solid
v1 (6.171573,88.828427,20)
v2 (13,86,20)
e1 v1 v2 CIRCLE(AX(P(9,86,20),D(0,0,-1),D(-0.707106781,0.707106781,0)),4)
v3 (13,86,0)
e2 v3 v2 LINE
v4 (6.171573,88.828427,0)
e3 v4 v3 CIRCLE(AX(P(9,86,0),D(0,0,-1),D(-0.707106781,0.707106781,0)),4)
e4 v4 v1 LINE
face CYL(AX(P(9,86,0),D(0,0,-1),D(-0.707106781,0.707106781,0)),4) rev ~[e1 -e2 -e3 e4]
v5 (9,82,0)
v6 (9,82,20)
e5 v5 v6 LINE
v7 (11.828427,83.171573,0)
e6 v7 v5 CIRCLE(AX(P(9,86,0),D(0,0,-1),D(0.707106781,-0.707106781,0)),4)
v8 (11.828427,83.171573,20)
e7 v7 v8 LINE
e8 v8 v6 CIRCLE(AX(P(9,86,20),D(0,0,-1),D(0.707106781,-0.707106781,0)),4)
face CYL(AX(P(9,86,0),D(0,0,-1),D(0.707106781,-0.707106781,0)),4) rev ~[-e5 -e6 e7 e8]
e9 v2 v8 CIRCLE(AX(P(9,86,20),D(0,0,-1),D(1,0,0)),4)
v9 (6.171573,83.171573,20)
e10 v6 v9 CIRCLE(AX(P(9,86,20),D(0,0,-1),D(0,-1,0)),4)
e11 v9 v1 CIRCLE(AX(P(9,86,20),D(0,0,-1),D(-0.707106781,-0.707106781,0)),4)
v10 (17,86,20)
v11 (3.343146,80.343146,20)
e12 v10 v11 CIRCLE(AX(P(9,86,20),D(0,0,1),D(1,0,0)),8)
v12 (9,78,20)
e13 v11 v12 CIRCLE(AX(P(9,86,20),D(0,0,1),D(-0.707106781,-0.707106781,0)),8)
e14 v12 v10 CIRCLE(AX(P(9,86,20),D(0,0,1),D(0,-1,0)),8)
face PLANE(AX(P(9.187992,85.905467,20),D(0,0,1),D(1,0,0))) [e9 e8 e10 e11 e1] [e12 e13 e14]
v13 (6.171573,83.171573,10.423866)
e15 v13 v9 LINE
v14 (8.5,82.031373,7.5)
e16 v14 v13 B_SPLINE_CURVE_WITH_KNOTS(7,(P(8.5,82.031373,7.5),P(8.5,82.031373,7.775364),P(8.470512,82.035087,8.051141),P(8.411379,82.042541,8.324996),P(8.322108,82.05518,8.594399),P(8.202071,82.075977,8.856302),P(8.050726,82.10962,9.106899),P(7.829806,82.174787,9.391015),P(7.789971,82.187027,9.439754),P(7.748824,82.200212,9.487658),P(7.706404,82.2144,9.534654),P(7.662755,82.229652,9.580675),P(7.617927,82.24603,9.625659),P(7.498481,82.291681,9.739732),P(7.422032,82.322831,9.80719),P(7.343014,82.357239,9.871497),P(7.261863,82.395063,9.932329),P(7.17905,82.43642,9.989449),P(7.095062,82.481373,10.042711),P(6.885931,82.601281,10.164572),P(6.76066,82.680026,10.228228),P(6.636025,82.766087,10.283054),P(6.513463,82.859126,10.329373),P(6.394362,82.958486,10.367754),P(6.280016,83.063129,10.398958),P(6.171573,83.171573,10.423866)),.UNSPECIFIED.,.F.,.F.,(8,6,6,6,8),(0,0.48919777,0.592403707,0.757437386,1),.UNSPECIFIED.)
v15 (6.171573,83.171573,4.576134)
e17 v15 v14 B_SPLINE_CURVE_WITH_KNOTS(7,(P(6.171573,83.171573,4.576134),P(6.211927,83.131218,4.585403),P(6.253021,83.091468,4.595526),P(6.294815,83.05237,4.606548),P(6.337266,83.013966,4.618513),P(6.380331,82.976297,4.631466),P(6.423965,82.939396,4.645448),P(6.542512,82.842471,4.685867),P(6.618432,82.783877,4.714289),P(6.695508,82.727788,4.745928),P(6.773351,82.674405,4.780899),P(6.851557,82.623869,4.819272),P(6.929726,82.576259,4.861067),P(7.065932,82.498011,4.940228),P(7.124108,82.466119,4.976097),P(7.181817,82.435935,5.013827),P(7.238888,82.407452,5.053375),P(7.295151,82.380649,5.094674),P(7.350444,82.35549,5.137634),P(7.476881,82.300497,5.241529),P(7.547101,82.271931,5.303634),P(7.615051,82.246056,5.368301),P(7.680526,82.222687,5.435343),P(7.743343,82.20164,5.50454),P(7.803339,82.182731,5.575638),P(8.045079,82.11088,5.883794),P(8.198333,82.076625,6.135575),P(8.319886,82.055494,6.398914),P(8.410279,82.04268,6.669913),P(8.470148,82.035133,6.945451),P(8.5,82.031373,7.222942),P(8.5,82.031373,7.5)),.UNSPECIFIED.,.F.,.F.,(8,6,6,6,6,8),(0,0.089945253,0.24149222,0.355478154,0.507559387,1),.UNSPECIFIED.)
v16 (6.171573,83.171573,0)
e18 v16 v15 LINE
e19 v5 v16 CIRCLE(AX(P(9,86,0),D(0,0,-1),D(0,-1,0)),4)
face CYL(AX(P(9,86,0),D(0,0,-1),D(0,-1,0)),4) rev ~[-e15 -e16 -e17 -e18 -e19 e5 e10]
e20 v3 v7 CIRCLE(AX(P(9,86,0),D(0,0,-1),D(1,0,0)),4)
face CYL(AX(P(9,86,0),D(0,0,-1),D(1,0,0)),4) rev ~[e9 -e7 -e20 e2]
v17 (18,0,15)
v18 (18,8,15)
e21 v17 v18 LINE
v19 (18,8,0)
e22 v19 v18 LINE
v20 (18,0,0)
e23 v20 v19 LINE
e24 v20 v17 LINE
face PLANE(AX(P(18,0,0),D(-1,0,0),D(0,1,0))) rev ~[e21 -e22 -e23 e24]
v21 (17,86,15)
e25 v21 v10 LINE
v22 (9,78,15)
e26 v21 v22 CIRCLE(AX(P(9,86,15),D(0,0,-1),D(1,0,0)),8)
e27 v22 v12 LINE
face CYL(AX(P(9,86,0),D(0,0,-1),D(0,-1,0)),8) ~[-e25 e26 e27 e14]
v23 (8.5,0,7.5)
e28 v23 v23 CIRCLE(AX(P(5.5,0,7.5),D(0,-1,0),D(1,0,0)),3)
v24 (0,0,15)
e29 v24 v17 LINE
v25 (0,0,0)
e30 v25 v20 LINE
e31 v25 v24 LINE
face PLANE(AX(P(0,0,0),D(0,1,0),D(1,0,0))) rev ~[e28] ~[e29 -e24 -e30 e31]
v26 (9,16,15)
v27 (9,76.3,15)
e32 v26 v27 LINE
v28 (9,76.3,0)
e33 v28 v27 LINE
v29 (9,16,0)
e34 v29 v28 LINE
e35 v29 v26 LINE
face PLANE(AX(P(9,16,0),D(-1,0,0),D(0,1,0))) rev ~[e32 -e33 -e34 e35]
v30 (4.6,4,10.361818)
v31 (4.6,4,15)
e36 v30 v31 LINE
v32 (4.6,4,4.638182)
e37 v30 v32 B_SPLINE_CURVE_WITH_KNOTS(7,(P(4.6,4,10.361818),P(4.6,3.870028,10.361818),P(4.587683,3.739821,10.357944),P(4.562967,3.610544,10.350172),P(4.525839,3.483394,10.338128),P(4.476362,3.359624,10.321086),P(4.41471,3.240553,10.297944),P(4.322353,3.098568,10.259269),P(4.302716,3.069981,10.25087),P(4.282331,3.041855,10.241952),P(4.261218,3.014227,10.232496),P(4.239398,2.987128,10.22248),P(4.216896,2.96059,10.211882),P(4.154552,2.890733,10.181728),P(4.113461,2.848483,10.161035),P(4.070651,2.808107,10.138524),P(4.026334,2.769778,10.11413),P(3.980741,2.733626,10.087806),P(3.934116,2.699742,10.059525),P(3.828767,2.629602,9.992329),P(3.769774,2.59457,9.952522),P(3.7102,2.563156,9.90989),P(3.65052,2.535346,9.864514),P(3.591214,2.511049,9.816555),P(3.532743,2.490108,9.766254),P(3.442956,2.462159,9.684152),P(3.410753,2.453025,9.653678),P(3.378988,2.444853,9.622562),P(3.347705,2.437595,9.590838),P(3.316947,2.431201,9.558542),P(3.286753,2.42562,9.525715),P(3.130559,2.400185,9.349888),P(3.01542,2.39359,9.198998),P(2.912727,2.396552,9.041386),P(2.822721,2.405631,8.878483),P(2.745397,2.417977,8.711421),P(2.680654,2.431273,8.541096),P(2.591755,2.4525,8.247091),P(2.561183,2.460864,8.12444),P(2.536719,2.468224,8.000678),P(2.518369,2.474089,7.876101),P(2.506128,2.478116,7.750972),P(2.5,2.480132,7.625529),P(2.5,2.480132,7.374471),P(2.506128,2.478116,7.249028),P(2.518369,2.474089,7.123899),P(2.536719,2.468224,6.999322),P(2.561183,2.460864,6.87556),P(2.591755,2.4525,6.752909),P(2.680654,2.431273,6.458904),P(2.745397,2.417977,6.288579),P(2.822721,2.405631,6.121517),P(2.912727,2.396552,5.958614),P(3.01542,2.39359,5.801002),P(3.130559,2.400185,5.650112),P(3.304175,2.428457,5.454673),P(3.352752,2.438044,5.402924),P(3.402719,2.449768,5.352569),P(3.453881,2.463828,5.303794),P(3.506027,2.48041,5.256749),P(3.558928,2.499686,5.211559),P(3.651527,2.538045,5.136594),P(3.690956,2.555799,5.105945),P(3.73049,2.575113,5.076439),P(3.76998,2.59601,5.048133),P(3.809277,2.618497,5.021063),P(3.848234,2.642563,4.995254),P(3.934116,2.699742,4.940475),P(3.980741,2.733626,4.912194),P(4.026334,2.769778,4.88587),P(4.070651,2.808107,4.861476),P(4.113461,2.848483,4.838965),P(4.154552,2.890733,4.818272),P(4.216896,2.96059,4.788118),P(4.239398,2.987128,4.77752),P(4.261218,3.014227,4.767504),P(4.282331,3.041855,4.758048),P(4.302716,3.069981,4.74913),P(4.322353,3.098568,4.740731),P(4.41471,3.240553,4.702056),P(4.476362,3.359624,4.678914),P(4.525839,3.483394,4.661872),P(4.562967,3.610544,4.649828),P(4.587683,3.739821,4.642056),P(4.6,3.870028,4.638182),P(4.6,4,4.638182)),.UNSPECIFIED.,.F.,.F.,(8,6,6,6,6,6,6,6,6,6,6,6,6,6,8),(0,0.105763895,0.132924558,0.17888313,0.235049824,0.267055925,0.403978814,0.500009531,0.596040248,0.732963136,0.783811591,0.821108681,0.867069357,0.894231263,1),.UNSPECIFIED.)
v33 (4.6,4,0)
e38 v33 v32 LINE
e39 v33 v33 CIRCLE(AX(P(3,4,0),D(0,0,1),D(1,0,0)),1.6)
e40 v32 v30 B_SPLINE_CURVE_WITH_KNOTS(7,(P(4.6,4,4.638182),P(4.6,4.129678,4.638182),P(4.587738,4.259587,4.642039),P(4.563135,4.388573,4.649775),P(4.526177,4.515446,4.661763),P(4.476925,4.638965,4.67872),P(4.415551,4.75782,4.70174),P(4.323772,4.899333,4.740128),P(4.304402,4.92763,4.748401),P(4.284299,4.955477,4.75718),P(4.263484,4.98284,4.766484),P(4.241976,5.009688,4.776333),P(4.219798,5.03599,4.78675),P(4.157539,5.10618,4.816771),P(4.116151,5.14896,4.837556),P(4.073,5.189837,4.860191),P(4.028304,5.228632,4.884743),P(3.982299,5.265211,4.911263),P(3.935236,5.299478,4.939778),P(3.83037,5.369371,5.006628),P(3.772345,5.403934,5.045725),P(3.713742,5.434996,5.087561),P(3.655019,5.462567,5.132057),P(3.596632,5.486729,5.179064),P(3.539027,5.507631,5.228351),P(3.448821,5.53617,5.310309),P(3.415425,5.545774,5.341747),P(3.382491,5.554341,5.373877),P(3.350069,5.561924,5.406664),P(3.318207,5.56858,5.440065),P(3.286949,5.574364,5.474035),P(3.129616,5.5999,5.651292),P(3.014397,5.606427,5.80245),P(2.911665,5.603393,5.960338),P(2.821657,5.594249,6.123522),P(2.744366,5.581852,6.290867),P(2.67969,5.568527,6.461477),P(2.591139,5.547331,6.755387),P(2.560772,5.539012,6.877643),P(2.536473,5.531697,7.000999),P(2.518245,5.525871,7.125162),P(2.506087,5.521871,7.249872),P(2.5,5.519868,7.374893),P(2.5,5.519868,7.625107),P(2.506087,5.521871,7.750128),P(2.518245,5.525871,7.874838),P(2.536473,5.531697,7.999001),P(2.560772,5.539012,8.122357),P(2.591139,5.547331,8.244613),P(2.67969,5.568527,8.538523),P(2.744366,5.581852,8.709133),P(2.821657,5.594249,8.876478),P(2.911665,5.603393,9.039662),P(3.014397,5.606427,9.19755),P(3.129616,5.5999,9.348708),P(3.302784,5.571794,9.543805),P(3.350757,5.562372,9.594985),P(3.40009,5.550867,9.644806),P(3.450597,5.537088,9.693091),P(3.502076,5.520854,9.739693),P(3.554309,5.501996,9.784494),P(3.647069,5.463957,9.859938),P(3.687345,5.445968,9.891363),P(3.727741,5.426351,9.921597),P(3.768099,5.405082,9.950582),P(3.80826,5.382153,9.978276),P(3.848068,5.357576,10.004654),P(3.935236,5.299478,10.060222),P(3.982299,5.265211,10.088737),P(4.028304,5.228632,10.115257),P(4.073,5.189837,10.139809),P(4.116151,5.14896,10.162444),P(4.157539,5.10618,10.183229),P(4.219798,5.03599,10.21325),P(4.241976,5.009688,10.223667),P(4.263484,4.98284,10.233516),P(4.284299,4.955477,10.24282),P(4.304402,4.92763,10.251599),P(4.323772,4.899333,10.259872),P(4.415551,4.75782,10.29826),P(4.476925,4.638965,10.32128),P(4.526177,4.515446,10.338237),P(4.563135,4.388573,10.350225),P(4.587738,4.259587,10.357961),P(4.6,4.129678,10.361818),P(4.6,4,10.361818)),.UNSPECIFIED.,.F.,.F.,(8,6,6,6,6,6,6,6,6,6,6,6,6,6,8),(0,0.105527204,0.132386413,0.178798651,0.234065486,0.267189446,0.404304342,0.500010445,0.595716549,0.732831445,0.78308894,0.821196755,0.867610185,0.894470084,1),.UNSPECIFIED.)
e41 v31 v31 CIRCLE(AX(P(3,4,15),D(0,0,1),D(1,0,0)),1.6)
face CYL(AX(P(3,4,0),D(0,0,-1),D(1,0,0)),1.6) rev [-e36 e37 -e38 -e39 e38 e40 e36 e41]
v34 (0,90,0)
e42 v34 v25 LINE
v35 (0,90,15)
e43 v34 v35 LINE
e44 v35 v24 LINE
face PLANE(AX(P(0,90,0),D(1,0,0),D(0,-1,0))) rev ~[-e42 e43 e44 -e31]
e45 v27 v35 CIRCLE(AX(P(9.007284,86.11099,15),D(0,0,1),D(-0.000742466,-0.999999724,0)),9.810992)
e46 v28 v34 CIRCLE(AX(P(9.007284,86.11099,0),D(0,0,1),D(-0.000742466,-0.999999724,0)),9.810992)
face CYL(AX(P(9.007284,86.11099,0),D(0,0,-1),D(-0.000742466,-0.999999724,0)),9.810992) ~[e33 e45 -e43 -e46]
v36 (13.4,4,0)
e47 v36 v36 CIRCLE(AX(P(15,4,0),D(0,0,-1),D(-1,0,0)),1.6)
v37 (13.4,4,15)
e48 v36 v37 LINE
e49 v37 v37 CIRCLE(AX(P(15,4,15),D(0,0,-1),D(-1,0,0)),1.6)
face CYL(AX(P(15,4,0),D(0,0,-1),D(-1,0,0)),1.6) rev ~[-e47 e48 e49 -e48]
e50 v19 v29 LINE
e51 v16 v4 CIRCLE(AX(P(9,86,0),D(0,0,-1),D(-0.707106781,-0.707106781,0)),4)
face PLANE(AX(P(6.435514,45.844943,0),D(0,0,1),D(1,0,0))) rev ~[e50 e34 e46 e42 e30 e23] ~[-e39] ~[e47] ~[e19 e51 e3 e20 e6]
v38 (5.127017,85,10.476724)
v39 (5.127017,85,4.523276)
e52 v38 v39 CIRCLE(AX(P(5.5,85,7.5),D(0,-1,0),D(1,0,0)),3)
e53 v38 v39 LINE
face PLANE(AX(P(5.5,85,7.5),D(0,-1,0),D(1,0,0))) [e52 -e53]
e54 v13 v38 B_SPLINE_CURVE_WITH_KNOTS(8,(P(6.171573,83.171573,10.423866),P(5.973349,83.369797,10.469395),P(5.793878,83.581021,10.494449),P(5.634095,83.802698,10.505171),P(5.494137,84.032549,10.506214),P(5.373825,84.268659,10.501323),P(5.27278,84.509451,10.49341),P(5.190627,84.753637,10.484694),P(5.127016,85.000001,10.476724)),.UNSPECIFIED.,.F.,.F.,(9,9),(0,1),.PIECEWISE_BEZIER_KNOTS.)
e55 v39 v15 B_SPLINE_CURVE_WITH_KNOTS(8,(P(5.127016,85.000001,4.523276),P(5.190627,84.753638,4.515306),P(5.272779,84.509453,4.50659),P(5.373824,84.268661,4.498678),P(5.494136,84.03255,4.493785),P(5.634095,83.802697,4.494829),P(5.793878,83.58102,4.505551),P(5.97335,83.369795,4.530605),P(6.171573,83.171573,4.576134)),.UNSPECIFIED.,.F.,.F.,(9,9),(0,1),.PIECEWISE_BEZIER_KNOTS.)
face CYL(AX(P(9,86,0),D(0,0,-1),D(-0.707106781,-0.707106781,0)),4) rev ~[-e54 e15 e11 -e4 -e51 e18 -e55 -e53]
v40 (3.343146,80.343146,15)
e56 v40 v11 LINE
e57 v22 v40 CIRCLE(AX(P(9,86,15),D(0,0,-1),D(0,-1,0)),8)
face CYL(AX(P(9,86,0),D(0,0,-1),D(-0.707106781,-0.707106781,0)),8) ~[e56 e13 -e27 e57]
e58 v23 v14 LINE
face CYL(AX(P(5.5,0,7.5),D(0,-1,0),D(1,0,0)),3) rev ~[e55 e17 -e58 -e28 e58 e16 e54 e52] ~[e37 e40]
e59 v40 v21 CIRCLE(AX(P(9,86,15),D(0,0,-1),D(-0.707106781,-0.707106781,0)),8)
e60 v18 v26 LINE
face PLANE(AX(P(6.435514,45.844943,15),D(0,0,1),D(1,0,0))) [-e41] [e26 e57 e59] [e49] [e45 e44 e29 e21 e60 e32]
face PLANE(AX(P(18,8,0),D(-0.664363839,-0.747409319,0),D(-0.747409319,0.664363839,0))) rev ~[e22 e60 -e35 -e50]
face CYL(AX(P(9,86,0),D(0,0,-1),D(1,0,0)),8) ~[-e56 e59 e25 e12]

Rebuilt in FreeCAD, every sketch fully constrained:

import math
import FreeCAD as App
import Part
import Sketcher

doc = App.newDocument("Part")
body = doc.addObject("PartDesign::Body", "Body")

# Sketch on XY plane
sketch1 = body.newObject("Sketcher::SketchObject", "Sketch")
sketch1.AttachmentSupport = (doc.getObject("XY_Plane"), [""])
sketch1.MapMode = "FlatFace"
sketch1.addGeometry(Part.ArcOfCircle(Part.Circle(App.Vector(9, 86, 0), App.Vector(0, 0, 1), 8), math.radians(-90), math.radians(0)), False)
sketch1.addGeometry(Part.ArcOfCircle(Part.Circle(App.Vector(9, 86, 0), App.Vector(0, 0, 1), 8), math.radians(0), math.radians(225)), False)
sketch1.addGeometry(Part.ArcOfCircle(Part.Circle(App.Vector(9, 86, 0), App.Vector(0, 0, 1), 8), math.radians(-135), math.radians(-90)), False)
sketch1.addGeometry(Part.ArcOfCircle(Part.Circle(App.Vector(9, 86, 0), App.Vector(0, 0, 1), 4), math.radians(135), math.radians(225)), False)
sketch1.addGeometry(Part.ArcOfCircle(Part.Circle(App.Vector(9, 86, 0), App.Vector(0, 0, 1), 4), math.radians(0), math.radians(135)), False)
sketch1.addGeometry(Part.ArcOfCircle(Part.Circle(App.Vector(9, 86, 0), App.Vector(0, 0, 1), 4), math.radians(-45), math.radians(0)), False)
sketch1.addGeometry(Part.ArcOfCircle(Part.Circle(App.Vector(9, 86, 0), App.Vector(0, 0, 1), 4), math.radians(-90), math.radians(-45)), False)
sketch1.addGeometry(Part.ArcOfCircle(Part.Circle(App.Vector(9, 86, 0), App.Vector(0, 0, 1), 4), math.radians(-135), math.radians(-90)), False)
sketch1.addConstraint(Sketcher.Constraint("Tangent", 0, 2, 1, 1))
sketch1.addConstraint(Sketcher.Constraint("Tangent", 1, 2, 2, 1))
sketch1.addConstraint(Sketcher.Constraint("Tangent", 2, 2, 0, 1))
sketch1.addConstraint(Sketcher.Constraint("Tangent", 3, 1, 4, 2))
sketch1.addConstraint(Sketcher.Constraint("Tangent", 4, 1, 5, 2))
sketch1.addConstraint(Sketcher.Constraint("Tangent", 5, 1, 6, 2))
sketch1.addConstraint(Sketcher.Constraint("Tangent", 6, 1, 7, 2))
sketch1.addConstraint(Sketcher.Constraint("Tangent", 7, 1, 3, 2))
sketch1.addConstraint(Sketcher.Constraint("Coincident", 3, 3, 0, 3))
sketch1.addConstraint(Sketcher.Constraint("Coincident", 5, 3, 0, 3))
sketch1.addConstraint(Sketcher.Constraint("Horizontal", 7, 3, 0, 2))
sketch1.addConstraint(Sketcher.Constraint("Horizontal", 0, 2, 4, 1))
sketch1.addConstraint(Sketcher.Constraint("Horizontal", 5, 1, 7, 1))
sketch1.addConstraint(Sketcher.Constraint("Vertical", 7, 3, 2, 2))
sketch1.addConstraint(Sketcher.Constraint("Vertical", 2, 2, 6, 1))
sketch1.addConstraint(Sketcher.Constraint("Vertical", 3, 1, 7, 1))
sketch1.addConstraint(Sketcher.Constraint("Radius", 0, 8.0))
sketch1.addConstraint(Sketcher.Constraint("Radius", 3, 4.0))
sketch1.addConstraint(Sketcher.Constraint("DistanceX", -1, 1, 0, 3, 9.0))
sketch1.addConstraint(Sketcher.Constraint("DistanceY", -1, 1, 0, 3, 86.0))
sketch1.addConstraint(Sketcher.Constraint("DistanceX", -1, 1, 1, 2, 3.343146))
sketch1.addConstraint(Sketcher.Constraint("DistanceX", -1, 1, 3, 1, 6.171573))
pad1 = body.newObject("PartDesign::Pad", "Pad")
pad1.Profile = sketch1
pad1.Length = 20

# Sketch on XY plane
sketch2 = body.newObject("Sketcher::SketchObject", "Sketch001")
sketch2.AttachmentSupport = (doc.getObject("XY_Plane"), [""])
sketch2.MapMode = "FlatFace"
sketch2.addGeometry(Part.ArcOfCircle(Part.Circle(App.Vector(9, 86.1, 0), App.Vector(0, 0, 1), 9.8), math.radians(-90), math.radians(157)), False)
sketch2.addGeometry(Part.LineSegment(App.Vector(0, 90, 0), App.Vector(0, 0, 0)), False)
sketch2.addGeometry(Part.LineSegment(App.Vector(0, 0, 0), App.Vector(18, 0, 0)), False)
sketch2.addGeometry(Part.LineSegment(App.Vector(18, 0, 0), App.Vector(18, 8, 0)), False)
sketch2.addGeometry(Part.LineSegment(App.Vector(18, 8, 0), App.Vector(9, 16, 0)), False)
sketch2.addGeometry(Part.LineSegment(App.Vector(9, 16, 0), App.Vector(9, 76.3, 0)), False)
sketch2.addGeometry(Part.Circle(App.Vector(3, 4, 0), App.Vector(0, 0, 1), 1.6), False)
sketch2.addGeometry(Part.Circle(App.Vector(15, 4, 0), App.Vector(0, 0, 1), 1.6), False)
sketch2.addGeometry(Part.ArcOfCircle(Part.Circle(App.Vector(9, 86, 0), App.Vector(0, 0, 1), 8), math.radians(0), math.radians(225)), False)
sketch2.addGeometry(Part.ArcOfCircle(Part.Circle(App.Vector(9, 86, 0), App.Vector(0, 0, 1), 8), math.radians(-90), math.radians(0)), False)
sketch2.addGeometry(Part.ArcOfCircle(Part.Circle(App.Vector(9, 86, 0), App.Vector(0, 0, 1), 8), math.radians(-135), math.radians(-90)), False)
sketch2.addConstraint(Sketcher.Constraint("Coincident", 0, 2, 1, 1))
sketch2.addConstraint(Sketcher.Constraint("Coincident", 1, 2, 2, 1))
sketch2.addConstraint(Sketcher.Constraint("Coincident", 2, 2, 3, 1))
sketch2.addConstraint(Sketcher.Constraint("Coincident", 3, 2, 4, 1))
sketch2.addConstraint(Sketcher.Constraint("Coincident", 4, 2, 5, 1))
sketch2.addConstraint(Sketcher.Constraint("Coincident", 5, 2, 0, 1))
sketch2.addConstraint(Sketcher.Constraint("Tangent", 8, 1, 9, 2))
sketch2.addConstraint(Sketcher.Constraint("Tangent", 9, 1, 10, 2))
sketch2.addConstraint(Sketcher.Constraint("Tangent", 10, 1, 8, 2))
sketch2.addConstraint(Sketcher.Constraint("Vertical", 1))
sketch2.addConstraint(Sketcher.Constraint("Horizontal", 2))
sketch2.addConstraint(Sketcher.Constraint("Vertical", 3))
sketch2.addConstraint(Sketcher.Constraint("Vertical", 5))
sketch2.addConstraint(Sketcher.Constraint("Coincident", 1, 2, -1, 1))
sketch2.addConstraint(Sketcher.Constraint("Equal", 6, 7))
sketch2.addConstraint(Sketcher.Constraint("Horizontal", 6, 3, 7, 3))
sketch2.addConstraint(Sketcher.Constraint("Horizontal", 10, 3, 8, 1))
sketch2.addConstraint(Sketcher.Constraint("Vertical", 10, 3, 4, 2))
sketch2.addConstraint(Sketcher.Constraint("Vertical", 5, 2, 9, 1))
sketch2.addConstraint(Sketcher.Constraint("Radius", 8, 8.0))
sketch2.addConstraint(Sketcher.Constraint("Diameter", 6, 3.2))
sketch2.addConstraint(Sketcher.Constraint("DistanceX", 2, 1, 2, 2, 18.0))
sketch2.addConstraint(Sketcher.Constraint("DistanceY", 1, 2, 1, 1, 90.0))
sketch2.addConstraint(Sketcher.Constraint("DistanceY", 3, 1, 3, 2, 8.0))
sketch2.addConstraint(Sketcher.Constraint("DistanceY", 5, 1, 5, 2, 60.3))
sketch2.addConstraint(Sketcher.Constraint("DistanceX", -1, 1, 6, 3, 3.0))
sketch2.addConstraint(Sketcher.Constraint("DistanceY", -1, 1, 6, 3, 4.0))
sketch2.addConstraint(Sketcher.Constraint("DistanceX", -1, 1, 7, 3, 15.0))
sketch2.addConstraint(Sketcher.Constraint("DistanceX", -1, 1, 8, 3, 9.0))
sketch2.addConstraint(Sketcher.Constraint("DistanceY", -1, 1, 8, 3, 86.0))
sketch2.addConstraint(Sketcher.Constraint("DistanceY", -1, 1, 4, 2, 16.0))
sketch2.addConstraint(Sketcher.Constraint("Radius", 0, 9.810992))
sketch2.addConstraint(Sketcher.Constraint("DistanceX", -1, 1, 10, 1, 3.343146))
pad2 = body.newObject("PartDesign::Pad", "Pad001")
pad2.Profile = sketch2
pad2.Length = 15

# Sketch on XZ plane
sketch3 = body.newObject("Sketcher::SketchObject", "Sketch002")
sketch3.AttachmentSupport = (doc.getObject("XZ_Plane"), [""])
sketch3.MapMode = "FlatFace"
sketch3.addGeometry(Part.Circle(App.Vector(5.5, 7.5, 0), App.Vector(0, 0, 1), 3), False)
sketch3.addConstraint(Sketcher.Constraint("Diameter", 0, 6.0))
sketch3.addConstraint(Sketcher.Constraint("DistanceX", -1, 1, 0, 3, 5.5))
sketch3.addConstraint(Sketcher.Constraint("DistanceY", -1, 1, 0, 3, 7.5))
pocket1 = body.newObject("PartDesign::Pocket", "Pocket")
pocket1.Profile = sketch3
pocket1.Length = 85

doc.recompute()
